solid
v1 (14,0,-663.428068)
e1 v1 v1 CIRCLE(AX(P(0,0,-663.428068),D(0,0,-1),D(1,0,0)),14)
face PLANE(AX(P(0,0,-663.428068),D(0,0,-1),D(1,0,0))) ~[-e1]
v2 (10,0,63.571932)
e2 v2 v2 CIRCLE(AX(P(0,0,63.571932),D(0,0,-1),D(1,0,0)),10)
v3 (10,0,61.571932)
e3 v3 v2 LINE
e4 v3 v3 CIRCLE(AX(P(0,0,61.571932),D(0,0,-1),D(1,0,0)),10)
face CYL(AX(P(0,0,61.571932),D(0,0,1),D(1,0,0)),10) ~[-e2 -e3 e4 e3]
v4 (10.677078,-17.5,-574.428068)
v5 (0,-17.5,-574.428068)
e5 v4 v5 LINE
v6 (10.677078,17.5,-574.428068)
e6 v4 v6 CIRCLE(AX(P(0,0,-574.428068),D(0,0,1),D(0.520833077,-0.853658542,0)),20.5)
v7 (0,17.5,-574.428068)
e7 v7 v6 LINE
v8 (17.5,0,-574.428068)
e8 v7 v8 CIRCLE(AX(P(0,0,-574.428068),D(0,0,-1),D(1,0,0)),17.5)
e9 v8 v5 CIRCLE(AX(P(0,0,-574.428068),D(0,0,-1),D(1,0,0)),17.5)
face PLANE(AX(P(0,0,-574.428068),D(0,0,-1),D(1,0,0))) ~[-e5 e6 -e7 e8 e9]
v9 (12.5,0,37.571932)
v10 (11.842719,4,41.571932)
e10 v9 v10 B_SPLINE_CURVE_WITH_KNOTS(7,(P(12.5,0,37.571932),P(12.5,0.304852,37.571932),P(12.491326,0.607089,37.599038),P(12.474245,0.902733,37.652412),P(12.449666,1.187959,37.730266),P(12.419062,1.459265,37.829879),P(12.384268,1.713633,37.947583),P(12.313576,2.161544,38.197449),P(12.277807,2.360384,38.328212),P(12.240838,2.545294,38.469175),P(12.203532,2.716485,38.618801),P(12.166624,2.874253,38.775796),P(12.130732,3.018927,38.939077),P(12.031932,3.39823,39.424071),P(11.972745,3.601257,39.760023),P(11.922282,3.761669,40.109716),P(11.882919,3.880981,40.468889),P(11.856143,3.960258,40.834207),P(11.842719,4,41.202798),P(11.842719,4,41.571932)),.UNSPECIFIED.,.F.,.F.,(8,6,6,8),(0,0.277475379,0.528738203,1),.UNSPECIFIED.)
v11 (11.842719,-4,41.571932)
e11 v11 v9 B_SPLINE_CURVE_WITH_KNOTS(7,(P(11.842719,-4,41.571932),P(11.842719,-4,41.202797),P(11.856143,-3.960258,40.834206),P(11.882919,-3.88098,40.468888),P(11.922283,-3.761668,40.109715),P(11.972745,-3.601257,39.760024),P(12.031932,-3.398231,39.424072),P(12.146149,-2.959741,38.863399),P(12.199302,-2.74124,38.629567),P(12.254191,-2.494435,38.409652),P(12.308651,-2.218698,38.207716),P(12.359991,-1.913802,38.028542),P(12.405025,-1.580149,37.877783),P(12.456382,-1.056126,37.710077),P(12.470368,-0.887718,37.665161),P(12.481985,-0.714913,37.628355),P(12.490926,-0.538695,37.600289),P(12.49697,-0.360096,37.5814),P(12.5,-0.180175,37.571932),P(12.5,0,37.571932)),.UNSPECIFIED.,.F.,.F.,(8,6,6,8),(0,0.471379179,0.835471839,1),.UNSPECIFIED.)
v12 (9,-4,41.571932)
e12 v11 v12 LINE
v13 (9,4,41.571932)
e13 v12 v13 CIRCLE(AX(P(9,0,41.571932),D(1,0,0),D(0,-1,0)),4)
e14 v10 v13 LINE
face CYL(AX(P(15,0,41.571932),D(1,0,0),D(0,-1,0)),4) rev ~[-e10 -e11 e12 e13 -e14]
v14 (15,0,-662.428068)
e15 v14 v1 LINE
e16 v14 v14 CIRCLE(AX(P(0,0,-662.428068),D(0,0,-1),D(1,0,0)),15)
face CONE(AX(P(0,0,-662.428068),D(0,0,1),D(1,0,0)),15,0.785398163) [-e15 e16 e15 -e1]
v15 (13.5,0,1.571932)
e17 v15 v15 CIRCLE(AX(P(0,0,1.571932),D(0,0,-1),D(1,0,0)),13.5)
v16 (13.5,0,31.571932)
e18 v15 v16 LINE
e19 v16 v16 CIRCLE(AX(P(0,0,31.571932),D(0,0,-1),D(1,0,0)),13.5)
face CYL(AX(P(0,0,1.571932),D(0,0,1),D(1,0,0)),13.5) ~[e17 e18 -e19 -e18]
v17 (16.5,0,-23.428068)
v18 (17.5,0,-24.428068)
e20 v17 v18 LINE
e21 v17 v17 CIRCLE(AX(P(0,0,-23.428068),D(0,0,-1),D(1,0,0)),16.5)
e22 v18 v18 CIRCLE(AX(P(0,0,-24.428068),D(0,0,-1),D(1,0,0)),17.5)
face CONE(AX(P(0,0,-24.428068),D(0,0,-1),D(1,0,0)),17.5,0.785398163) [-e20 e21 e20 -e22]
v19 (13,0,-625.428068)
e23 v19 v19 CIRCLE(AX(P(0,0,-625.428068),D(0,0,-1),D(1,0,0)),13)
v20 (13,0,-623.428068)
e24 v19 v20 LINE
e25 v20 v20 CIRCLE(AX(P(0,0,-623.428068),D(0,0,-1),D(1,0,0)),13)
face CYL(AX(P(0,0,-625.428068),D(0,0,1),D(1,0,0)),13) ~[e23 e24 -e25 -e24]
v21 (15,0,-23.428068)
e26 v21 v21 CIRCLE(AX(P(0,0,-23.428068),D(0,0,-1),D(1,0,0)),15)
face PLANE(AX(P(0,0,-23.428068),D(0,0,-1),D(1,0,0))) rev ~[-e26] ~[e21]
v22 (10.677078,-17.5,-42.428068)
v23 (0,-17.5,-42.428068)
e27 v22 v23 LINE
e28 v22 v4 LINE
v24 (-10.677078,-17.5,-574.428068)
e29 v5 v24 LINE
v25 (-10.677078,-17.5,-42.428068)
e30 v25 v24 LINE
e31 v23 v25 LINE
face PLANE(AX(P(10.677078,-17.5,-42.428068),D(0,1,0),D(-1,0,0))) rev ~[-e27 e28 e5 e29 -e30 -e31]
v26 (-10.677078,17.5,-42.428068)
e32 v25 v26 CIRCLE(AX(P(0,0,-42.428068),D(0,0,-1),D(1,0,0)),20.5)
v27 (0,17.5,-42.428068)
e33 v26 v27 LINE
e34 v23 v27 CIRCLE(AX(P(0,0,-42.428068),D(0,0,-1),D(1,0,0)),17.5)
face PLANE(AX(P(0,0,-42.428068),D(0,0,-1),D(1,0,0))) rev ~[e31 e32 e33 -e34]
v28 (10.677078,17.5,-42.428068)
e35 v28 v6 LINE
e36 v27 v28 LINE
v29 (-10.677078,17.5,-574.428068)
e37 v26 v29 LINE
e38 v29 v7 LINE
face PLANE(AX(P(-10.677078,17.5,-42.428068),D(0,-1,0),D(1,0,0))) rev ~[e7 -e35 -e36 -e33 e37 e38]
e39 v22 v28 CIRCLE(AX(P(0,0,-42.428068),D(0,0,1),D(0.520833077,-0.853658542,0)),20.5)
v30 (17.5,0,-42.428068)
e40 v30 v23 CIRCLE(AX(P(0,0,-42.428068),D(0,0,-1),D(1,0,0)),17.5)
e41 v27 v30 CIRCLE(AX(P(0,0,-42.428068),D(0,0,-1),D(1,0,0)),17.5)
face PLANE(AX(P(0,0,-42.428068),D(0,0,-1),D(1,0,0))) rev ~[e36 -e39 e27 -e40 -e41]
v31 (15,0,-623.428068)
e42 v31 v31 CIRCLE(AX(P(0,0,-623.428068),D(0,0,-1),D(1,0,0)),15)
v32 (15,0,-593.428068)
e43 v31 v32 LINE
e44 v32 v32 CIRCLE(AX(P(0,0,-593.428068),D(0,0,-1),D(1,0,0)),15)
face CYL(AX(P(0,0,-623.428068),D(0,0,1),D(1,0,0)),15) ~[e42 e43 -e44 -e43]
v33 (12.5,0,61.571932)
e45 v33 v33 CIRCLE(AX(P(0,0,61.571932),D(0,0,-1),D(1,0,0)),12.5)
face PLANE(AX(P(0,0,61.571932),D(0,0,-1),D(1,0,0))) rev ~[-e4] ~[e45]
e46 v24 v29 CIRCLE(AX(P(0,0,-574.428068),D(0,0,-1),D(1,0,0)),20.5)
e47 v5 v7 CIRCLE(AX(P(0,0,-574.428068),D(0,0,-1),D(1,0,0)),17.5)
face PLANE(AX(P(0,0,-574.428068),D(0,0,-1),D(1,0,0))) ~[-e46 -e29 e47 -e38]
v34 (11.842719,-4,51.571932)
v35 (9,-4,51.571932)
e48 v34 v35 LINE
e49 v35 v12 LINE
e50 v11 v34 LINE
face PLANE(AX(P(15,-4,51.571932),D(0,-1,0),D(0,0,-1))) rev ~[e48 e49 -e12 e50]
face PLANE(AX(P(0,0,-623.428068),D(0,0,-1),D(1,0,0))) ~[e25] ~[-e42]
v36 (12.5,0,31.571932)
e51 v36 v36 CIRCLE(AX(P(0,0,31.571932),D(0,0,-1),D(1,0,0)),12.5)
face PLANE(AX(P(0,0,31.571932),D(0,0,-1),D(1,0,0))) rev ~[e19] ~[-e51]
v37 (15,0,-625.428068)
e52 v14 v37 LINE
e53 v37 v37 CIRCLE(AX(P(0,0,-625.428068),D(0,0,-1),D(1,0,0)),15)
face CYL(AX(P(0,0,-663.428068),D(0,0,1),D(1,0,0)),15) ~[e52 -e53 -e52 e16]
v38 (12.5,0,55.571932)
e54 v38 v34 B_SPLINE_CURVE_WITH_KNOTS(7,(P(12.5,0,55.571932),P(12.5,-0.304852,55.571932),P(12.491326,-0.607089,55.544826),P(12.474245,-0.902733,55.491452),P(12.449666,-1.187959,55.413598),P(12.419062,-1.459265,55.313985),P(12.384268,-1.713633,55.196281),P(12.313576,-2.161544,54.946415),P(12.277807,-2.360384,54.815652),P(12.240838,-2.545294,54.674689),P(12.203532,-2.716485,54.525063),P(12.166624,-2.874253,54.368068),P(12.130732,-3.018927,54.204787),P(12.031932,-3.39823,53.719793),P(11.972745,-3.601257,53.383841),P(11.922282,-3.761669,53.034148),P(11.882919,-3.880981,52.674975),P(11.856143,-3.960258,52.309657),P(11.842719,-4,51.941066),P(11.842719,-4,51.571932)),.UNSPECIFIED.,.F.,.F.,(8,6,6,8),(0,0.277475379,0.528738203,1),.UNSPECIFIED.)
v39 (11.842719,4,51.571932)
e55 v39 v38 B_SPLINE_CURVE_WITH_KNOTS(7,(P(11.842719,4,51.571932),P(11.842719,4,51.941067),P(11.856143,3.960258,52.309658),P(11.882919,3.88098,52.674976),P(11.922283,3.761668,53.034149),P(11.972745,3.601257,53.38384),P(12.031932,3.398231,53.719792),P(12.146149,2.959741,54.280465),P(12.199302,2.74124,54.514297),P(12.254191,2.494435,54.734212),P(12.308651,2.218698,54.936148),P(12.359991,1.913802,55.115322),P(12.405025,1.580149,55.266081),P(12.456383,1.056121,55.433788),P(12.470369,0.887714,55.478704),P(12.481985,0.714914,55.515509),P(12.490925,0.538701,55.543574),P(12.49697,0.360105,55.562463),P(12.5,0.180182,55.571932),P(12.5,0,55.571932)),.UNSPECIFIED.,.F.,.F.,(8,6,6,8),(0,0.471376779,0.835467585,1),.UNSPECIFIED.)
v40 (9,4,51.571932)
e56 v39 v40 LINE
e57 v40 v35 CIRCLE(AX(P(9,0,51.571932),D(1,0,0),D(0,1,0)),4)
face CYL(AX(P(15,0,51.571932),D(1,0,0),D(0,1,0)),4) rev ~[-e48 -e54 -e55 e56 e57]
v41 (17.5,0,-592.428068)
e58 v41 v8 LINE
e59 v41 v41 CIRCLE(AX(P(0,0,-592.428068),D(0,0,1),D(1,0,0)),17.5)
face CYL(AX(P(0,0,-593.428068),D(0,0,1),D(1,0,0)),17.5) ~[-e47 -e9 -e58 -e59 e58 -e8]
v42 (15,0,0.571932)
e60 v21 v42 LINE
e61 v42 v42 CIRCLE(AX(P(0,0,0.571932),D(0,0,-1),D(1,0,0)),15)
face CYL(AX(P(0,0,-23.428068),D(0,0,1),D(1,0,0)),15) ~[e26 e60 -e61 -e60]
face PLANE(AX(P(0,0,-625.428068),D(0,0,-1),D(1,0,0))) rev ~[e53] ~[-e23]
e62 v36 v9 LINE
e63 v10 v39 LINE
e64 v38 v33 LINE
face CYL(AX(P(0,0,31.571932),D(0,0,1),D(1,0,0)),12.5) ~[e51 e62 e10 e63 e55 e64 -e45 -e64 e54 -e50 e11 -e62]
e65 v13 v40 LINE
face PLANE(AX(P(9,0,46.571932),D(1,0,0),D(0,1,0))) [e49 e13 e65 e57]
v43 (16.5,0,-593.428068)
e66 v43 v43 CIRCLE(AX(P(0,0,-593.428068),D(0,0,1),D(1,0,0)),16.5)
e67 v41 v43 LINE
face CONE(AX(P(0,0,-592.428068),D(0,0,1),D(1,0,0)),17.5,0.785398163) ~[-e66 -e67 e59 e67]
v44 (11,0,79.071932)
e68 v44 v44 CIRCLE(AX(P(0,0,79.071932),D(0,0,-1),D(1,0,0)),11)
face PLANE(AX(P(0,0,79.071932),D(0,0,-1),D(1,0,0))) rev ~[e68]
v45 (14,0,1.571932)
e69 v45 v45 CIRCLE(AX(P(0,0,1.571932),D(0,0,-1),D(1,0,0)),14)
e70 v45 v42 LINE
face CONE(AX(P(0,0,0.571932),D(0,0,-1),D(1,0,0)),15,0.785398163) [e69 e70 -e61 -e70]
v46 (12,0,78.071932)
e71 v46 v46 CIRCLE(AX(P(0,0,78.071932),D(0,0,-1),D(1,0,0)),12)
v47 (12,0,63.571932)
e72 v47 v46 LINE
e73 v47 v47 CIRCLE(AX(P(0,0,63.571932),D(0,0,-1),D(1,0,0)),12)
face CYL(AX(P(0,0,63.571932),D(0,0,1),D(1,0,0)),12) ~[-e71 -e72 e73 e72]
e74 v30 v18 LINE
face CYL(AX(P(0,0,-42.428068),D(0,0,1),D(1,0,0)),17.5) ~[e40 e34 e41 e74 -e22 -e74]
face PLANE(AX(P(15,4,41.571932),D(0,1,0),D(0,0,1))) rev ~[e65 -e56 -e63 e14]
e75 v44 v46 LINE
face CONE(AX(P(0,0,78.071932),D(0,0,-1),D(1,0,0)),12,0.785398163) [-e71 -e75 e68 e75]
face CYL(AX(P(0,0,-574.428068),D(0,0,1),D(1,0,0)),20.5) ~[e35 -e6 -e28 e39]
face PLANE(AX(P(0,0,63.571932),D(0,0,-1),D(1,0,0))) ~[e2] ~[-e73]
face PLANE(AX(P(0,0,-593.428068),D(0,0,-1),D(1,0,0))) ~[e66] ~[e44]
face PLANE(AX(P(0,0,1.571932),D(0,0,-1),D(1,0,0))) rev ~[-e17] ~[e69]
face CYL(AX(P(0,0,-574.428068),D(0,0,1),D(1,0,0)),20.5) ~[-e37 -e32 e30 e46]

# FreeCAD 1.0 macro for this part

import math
import FreeCAD as App
import Part
import Sketcher
Q = App.Units.Quantity


def edges_at(feature, points):
    """Names of the edges that pass closest to the given points."""
    edges = feature.Shape.Edges
    near = lambda p: min(range(len(edges)), key=lambda i: edges[i].distToShape(Part.Vertex(*p))[0])
    return sorted({f"Edge{near(p) + 1}" for p in points})

doc = App.newDocument("Part")
body = doc.addObject("PartDesign::Body", "Body")

# Sketch on XZ plane
sketch1 = body.newObject("Sketcher::SketchObject", "Sketch")
sketch1.AttachmentSupport = (doc.getObject("XZ_Plane"), [""])
sketch1.MapMode = "FlatFace"
sketch1.addGeometry([
    Part.LineSegment(App.Vector(12, 79.1, 0), App.Vector(0, 79.1, 0)),  # 0
    Part.LineSegment(App.Vector(0, 79.1, 0), App.Vector(0, -663.4, 0)),  # 1
    Part.LineSegment(App.Vector(0, -663.4, 0), App.Vector(15, -663.4, 0)),  # 2
    Part.LineSegment(App.Vector(15, -663.4, 0), App.Vector(15, -625.4, 0)),  # 3
    Part.LineSegment(App.Vector(15, -625.4, 0), App.Vector(13, -625.4, 0)),  # 4
    Part.LineSegment(App.Vector(13, -625.4, 0), App.Vector(13, -623.4, 0)),  # 5
    Part.LineSegment(App.Vector(13, -623.4, 0), App.Vector(15, -623.4, 0)),  # 6
    Part.LineSegment(App.Vector(15, -623.4, 0), App.Vector(15, -593.4, 0)),  # 7
    Part.LineSegment(App.Vector(15, -593.4, 0), App.Vector(17.5, -593.4, 0)),  # 8
    Part.LineSegment(App.Vector(17.5, -593.4, 0), App.Vector(17.5, -574.4, 0)),  # 9
    Part.LineSegment(App.Vector(17.5, -574.4, 0), App.Vector(20.5, -574.4, 0)),  # 10
    Part.LineSegment(App.Vector(20.5, -574.4, 0), App.Vector(20.5, -42.4, 0)),  # 11
    Part.LineSegment(App.Vector(20.5, -42.4, 0), App.Vector(17.5, -42.4, 0)),  # 12
    Part.LineSegment(App.Vector(17.5, -42.4, 0), App.Vector(17.5, -23.4, 0)),  # 13
    Part.LineSegment(App.Vector(17.5, -23.4, 0), App.Vector(15, -23.4, 0)),  # 14
    Part.LineSegment(App.Vector(15, -23.4, 0), App.Vector(15, 1.6, 0)),  # 15
    Part.LineSegment(App.Vector(15, 1.6, 0), App.Vector(13.5, 1.6, 0)),  # 16
    Part.LineSegment(App.Vector(13.5, 1.6, 0), App.Vector(13.5, 31.6, 0)),  # 17
    Part.LineSegment(App.Vector(13.5, 31.6, 0), App.Vector(12.5, 31.6, 0)),  # 18
    Part.LineSegment(App.Vector(12.5, 31.6, 0), App.Vector(12.5, 61.6, 0)),  # 19
    Part.LineSegment(App.Vector(12.5, 61.6, 0), App.Vector(10, 61.6, 0)),  # 20
    Part.LineSegment(App.Vector(10, 61.6, 0), App.Vector(10, 63.6, 0)),  # 21
    Part.LineSegment(App.Vector(10, 63.6, 0), App.Vector(12, 63.6, 0)),  # 22
    Part.LineSegment(App.Vector(12, 63.6, 0), App.Vector(12, 79.1, 0)),  # 23
], False)
sketch1.addConstraint([
    Sketcher.Constraint("Coincident", 0, 2, 1, 1),
    Sketcher.Constraint("Coincident", 1, 2, 2, 1),
    Sketcher.Constraint("Coincident", 2, 2, 3, 1),
    Sketcher.Constraint("Coincident", 3, 2, 4, 1),
    Sketcher.Constraint("Coincident", 4, 2, 5, 1),
    Sketcher.Constraint("Coincident", 5, 2, 6, 1),
    Sketcher.Constraint("Coincident", 6, 2, 7, 1),
    Sketcher.Constraint("Coincident", 7, 2, 8, 1),
    Sketcher.Constraint("Coincident", 8, 2, 9, 1),
    Sketcher.Constraint("Coincident", 9, 2, 10, 1),
    Sketcher.Constraint("Coincident", 10, 2, 11, 1),
    Sketcher.Constraint("Coincident", 11, 2, 12, 1),
    Sketcher.Constraint("Coincident", 12, 2, 13, 1),
    Sketcher.Constraint("Coincident", 13, 2, 14, 1),
    Sketcher.Constraint("Coincident", 14, 2, 15, 1),
    Sketcher.Constraint("Coincident", 15, 2, 16, 1),
    Sketcher.Constraint("Coincident", 16, 2, 17, 1),
    Sketcher.Constraint("Coincident", 17, 2, 18, 1),
    Sketcher.Constraint("Coincident", 18, 2, 19, 1),
    Sketcher.Constraint("Coincident", 19, 2, 20, 1),
    Sketcher.Constraint("Coincident", 20, 2, 21, 1),
    Sketcher.Constraint("Coincident", 21, 2, 22, 1),
    Sketcher.Constraint("Coincident", 22, 2, 23, 1),
    Sketcher.Constraint("Coincident", 23, 2, 0, 1),
    Sketcher.Constraint("Horizontal", 0),
    Sketcher.Constraint("Vertical", 1),
    Sketcher.Constraint("Horizontal", 2),
    Sketcher.Constraint("Vertical", 3),
    Sketcher.Constraint("Horizontal", 4),
    Sketcher.Constraint("Vertical", 5),
    Sketcher.Constraint("Horizontal", 6),
    Sketcher.Constraint("Vertical", 7),
    Sketcher.Constraint("Horizontal", 8),
    Sketcher.Constraint("Vertical", 9),
    Sketcher.Constraint("Horizontal", 10),
    Sketcher.Constraint("Vertical", 11),
    Sketcher.Constraint("Horizontal", 12),
    Sketcher.Constraint("Vertical", 13),
    Sketcher.Constraint("Horizontal", 14),
    Sketcher.Constraint("Vertical", 15),
    Sketcher.Constraint("Horizontal", 16),
    Sketcher.Constraint("Vertical", 17),
    Sketcher.Constraint("Horizontal", 18),
    Sketcher.Constraint("Vertical", 19),
    Sketcher.Constraint("Horizontal", 20),
    Sketcher.Constraint("Vertical", 21),
    Sketcher.Constraint("Horizontal", 22),
    Sketcher.Constraint("Vertical", 23),
    Sketcher.Constraint("PointOnObject", 0, 2, -2),
    Sketcher.Constraint("Vertical", 3, 2, 6, 2),
    Sketcher.Constraint("Vertical", 9, 2, 12, 2),
    Sketcher.Constraint("Vertical", 7, 2, 14, 2),
    Sketcher.Constraint("Equal", 14, 20),
    Sketcher.Constraint("Equal", 6, 22),
    Sketcher.Constraint("Equal", 22, 5),
    Sketcher.Constraint("Equal", 9, 13),
    Sketcher.Constraint("Equal", 7, 17),
    Sketcher.Constraint("Equal", 17, 19),
    Sketcher.Constraint("Equal", 5, 21),
    Sketcher.Constraint("DistanceX", 0, 2, 0, 1, Q("12 mm")),
    Sketcher.Constraint("DistanceX", 2, 1, 2, 2, Q("15 mm")),
    Sketcher.Constraint("DistanceX", 4, 2, 4, 1, Q("2 mm")),
    Sketcher.Constraint("DistanceX", 10, 1, 10, 2, Q("3 mm")),
    Sketcher.Constraint("DistanceX", 18, 2, 18, 1, Q("1 mm")),
    Sketcher.Constraint("DistanceY", 3, 1, 3, 2, Q("38 mm")),
    Sketcher.Constraint("DistanceY", 7, 1, 7, 2, Q("30 mm")),
    Sketcher.Constraint("DistanceY", 9, 1, 9, 2, Q("19 mm")),
    Sketcher.Constraint("DistanceY", 11, 1, 11, 2, Q("532 mm")),
    Sketcher.Constraint("DistanceY", 15, 1, 15, 2, Q("25 mm")),
    Sketcher.Constraint("DistanceX", 8, 1, 8, 2, Q("2.5 mm")),
    Sketcher.Constraint("DistanceY", 1, 2, 1, 1, Q("742.5 mm")),
    Sketcher.Constraint("DistanceY", 1, 2, -1, 1, Q("663.428068 mm")),
])
revolution = body.newObject("PartDesign::Revolution", "Revolution")
revolution.Profile = sketch1
revolution.ReferenceAxis = (sketch1, ["V_Axis"])
revolution.Angle = 360

# Sketch on XY plane
sketch2 = body.newObject("Sketcher::SketchObject", "Sketch001")
sketch2.AttachmentSupport = (doc.getObject("XY_Plane"), [""])
sketch2.MapMode = "FlatFace"
sketch2.AttachmentOffset = App.Placement(App.Vector(0, 0, -42.428068), App.Rotation())
sketch2.addGeometry([
    Part.ArcOfCircle(Part.Circle(App.Vector(0, 0, 0), App.Vector(0, 0, 1), 20), math.radians(59), math.radians(121)),
    Part.LineSegment(App.Vector(-11, 18, 0), App.Vector(11, 18, 0)),
    Part.ArcOfCircle(Part.Circle(App.Vector(0, 0, 0), App.Vector(0, 0, 1), 20), math.radians(-121), math.radians(-59)),
    Part.LineSegment(App.Vector(11, -18, 0), App.Vector(-11, -18, 0)),
], False)
sketch2.addConstraint([
    Sketcher.Constraint("Coincident", 0, 1, 1, 2),
    Sketcher.Constraint("Coincident", 1, 1, 0, 2),
    Sketcher.Constraint("Coincident", 2, 1, 3, 2),
    Sketcher.Constraint("Coincident", 3, 1, 2, 2),
    Sketcher.Constraint("Horizontal", 1),
    Sketcher.Constraint("Horizontal", 3),
    Sketcher.Constraint("Coincident", 0, 3, -1, 1),
    Sketcher.Constraint("Coincident", 2, 3, -1, 1),
    Sketcher.Constraint("Equal", 0, 2),
    Sketcher.Constraint("Vertical", 1, 1, 2, 1),
    Sketcher.Constraint("Radius", 0, Q("20.499999 mm")),
    Sketcher.Constraint("DistanceY", 2, 1, 1, 1, Q("35 mm")),
])
pocket1 = body.newObject("PartDesign::Pocket", "Pocket")
pocket1.Profile = sketch2
pocket1.Type = "ThroughAll"
doc.recompute()

chamfer = body.newObject("PartDesign::Chamfer", "Chamfer")
chamfer.Base = (pocket1, edges_at(pocket1, [
    (-15, 0, -663.428),
    (-17.5, 0, -593.428),
    (-12, 0, 79.072),
    (-15, 0, 1.572),
    (-17.5, 0, -23.428),
]))
chamfer.Size = 1

# Sketch on YZ plane
sketch3 = body.newObject("Sketcher::SketchObject", "Sketch002")
sketch3.AttachmentSupport = (doc.getObject("YZ_Plane"), [""])
sketch3.MapMode = "FlatFace"
sketch3.AttachmentOffset = App.Placement(App.Vector(0, 0, 15), App.Rotation())
sketch3.addGeometry([
    Part.ArcOfCircle(Part.Circle(App.Vector(0, 51.6, 0), App.Vector(0, 0, 1), 4), math.radians(0), math.radians(180)),
    Part.LineSegment(App.Vector(-4, 51.6, 0), App.Vector(-4, 41.6, 0)),
    Part.ArcOfCircle(Part.Circle(App.Vector(0, 41.6, 0), App.Vector(0, 0, 1), 4), math.radians(180), math.radians(360)),
    Part.LineSegment(App.Vector(4, 41.6, 0), App.Vector(4, 51.6, 0)),
], False)
sketch3.addConstraint([
    Sketcher.Constraint("Tangent", 0, 2, 1, 1),
    Sketcher.Constraint("Tangent", 1, 2, 2, 1),
    Sketcher.Constraint("Tangent", 2, 2, 3, 1),
    Sketcher.Constraint("Tangent", 3, 2, 0, 1),
    Sketcher.Constraint("Vertical", 1),
    Sketcher.Constraint("Vertical", 3),
    Sketcher.Constraint("PointOnObject", 0, 3, -2),
    Sketcher.Constraint("Radius", 0, Q("4 mm")),
    Sketcher.Constraint("DistanceY", 1, 2, 1, 1, Q("10 mm")),
    Sketcher.Constraint("DistanceY", -1, 1, 0, 3, Q("51.571932 mm")),
])
pocket2 = body.newObject("PartDesign::Pocket", "Pocket001")
pocket2.Profile = sketch3
pocket2.Length = 6

doc.recompute()
